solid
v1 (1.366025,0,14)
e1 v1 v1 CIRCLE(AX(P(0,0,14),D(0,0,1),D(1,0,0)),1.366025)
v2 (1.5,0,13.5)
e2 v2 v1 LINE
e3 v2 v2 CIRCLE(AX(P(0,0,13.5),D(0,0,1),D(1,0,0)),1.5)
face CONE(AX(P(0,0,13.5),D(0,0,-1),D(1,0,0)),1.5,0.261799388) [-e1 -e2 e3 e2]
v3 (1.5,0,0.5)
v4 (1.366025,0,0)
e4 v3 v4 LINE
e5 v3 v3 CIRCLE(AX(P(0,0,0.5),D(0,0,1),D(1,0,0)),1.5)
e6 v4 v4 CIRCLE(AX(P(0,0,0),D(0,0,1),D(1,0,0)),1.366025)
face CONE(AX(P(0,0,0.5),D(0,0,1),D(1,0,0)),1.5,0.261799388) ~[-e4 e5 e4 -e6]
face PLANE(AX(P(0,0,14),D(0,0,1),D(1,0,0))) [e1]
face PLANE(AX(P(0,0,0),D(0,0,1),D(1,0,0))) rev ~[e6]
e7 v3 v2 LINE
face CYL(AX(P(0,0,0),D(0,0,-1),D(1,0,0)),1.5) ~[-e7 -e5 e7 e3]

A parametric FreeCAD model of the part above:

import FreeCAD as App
import Part
import Sketcher
Q = App.Units.Quantity


def edges_at(feature, points):
    """Names of the edges that pass closest to the given points."""
    edges = feature.Shape.Edges
    near = lambda p: min(range(len(edges)), key=lambda i: edges[i].distToShape(Part.Vertex(*p))[0])
    return sorted({f"Edge{near(p) + 1}" for p in points})

doc = App.newDocument("Part")
body = doc.addObject("PartDesign::Body", "Body")

# Sketch on XY plane
sketch1 = body.newObject("Sketcher::SketchObject", "Sketch")
sketch1.AttachmentSupport = (doc.getObject("XY_Plane"), [""])
sketch1.MapMode = "FlatFace"
sketch1.addGeometry(Part.Circle(App.Vector(0, 0, 0), App.Vector(0, 0, 1), 1.5), False)
sketch1.addConstraint([
    Sketcher.Constraint("Coincident", 0, 3, -1, 1),
    Sketcher.Constraint("Diameter", 0, Q("3 mm")),
])
pad1 = body.newObject("PartDesign::Pad", "Pad")
pad1.Profile = sketch1
pad1.Length = 14
doc.recompute()

chamfer = body.newObject("PartDesign::Chamfer", "Chamfer")
chamfer.Base = (pad1, edges_at(pad1, [(-1.5, 0, 0), (-1.5, 0, 14)]))
chamfer.ChamferType = "Distance and Angle"
chamfer.Size = 0.5
chamfer.Angle = 15

doc.recompute()
